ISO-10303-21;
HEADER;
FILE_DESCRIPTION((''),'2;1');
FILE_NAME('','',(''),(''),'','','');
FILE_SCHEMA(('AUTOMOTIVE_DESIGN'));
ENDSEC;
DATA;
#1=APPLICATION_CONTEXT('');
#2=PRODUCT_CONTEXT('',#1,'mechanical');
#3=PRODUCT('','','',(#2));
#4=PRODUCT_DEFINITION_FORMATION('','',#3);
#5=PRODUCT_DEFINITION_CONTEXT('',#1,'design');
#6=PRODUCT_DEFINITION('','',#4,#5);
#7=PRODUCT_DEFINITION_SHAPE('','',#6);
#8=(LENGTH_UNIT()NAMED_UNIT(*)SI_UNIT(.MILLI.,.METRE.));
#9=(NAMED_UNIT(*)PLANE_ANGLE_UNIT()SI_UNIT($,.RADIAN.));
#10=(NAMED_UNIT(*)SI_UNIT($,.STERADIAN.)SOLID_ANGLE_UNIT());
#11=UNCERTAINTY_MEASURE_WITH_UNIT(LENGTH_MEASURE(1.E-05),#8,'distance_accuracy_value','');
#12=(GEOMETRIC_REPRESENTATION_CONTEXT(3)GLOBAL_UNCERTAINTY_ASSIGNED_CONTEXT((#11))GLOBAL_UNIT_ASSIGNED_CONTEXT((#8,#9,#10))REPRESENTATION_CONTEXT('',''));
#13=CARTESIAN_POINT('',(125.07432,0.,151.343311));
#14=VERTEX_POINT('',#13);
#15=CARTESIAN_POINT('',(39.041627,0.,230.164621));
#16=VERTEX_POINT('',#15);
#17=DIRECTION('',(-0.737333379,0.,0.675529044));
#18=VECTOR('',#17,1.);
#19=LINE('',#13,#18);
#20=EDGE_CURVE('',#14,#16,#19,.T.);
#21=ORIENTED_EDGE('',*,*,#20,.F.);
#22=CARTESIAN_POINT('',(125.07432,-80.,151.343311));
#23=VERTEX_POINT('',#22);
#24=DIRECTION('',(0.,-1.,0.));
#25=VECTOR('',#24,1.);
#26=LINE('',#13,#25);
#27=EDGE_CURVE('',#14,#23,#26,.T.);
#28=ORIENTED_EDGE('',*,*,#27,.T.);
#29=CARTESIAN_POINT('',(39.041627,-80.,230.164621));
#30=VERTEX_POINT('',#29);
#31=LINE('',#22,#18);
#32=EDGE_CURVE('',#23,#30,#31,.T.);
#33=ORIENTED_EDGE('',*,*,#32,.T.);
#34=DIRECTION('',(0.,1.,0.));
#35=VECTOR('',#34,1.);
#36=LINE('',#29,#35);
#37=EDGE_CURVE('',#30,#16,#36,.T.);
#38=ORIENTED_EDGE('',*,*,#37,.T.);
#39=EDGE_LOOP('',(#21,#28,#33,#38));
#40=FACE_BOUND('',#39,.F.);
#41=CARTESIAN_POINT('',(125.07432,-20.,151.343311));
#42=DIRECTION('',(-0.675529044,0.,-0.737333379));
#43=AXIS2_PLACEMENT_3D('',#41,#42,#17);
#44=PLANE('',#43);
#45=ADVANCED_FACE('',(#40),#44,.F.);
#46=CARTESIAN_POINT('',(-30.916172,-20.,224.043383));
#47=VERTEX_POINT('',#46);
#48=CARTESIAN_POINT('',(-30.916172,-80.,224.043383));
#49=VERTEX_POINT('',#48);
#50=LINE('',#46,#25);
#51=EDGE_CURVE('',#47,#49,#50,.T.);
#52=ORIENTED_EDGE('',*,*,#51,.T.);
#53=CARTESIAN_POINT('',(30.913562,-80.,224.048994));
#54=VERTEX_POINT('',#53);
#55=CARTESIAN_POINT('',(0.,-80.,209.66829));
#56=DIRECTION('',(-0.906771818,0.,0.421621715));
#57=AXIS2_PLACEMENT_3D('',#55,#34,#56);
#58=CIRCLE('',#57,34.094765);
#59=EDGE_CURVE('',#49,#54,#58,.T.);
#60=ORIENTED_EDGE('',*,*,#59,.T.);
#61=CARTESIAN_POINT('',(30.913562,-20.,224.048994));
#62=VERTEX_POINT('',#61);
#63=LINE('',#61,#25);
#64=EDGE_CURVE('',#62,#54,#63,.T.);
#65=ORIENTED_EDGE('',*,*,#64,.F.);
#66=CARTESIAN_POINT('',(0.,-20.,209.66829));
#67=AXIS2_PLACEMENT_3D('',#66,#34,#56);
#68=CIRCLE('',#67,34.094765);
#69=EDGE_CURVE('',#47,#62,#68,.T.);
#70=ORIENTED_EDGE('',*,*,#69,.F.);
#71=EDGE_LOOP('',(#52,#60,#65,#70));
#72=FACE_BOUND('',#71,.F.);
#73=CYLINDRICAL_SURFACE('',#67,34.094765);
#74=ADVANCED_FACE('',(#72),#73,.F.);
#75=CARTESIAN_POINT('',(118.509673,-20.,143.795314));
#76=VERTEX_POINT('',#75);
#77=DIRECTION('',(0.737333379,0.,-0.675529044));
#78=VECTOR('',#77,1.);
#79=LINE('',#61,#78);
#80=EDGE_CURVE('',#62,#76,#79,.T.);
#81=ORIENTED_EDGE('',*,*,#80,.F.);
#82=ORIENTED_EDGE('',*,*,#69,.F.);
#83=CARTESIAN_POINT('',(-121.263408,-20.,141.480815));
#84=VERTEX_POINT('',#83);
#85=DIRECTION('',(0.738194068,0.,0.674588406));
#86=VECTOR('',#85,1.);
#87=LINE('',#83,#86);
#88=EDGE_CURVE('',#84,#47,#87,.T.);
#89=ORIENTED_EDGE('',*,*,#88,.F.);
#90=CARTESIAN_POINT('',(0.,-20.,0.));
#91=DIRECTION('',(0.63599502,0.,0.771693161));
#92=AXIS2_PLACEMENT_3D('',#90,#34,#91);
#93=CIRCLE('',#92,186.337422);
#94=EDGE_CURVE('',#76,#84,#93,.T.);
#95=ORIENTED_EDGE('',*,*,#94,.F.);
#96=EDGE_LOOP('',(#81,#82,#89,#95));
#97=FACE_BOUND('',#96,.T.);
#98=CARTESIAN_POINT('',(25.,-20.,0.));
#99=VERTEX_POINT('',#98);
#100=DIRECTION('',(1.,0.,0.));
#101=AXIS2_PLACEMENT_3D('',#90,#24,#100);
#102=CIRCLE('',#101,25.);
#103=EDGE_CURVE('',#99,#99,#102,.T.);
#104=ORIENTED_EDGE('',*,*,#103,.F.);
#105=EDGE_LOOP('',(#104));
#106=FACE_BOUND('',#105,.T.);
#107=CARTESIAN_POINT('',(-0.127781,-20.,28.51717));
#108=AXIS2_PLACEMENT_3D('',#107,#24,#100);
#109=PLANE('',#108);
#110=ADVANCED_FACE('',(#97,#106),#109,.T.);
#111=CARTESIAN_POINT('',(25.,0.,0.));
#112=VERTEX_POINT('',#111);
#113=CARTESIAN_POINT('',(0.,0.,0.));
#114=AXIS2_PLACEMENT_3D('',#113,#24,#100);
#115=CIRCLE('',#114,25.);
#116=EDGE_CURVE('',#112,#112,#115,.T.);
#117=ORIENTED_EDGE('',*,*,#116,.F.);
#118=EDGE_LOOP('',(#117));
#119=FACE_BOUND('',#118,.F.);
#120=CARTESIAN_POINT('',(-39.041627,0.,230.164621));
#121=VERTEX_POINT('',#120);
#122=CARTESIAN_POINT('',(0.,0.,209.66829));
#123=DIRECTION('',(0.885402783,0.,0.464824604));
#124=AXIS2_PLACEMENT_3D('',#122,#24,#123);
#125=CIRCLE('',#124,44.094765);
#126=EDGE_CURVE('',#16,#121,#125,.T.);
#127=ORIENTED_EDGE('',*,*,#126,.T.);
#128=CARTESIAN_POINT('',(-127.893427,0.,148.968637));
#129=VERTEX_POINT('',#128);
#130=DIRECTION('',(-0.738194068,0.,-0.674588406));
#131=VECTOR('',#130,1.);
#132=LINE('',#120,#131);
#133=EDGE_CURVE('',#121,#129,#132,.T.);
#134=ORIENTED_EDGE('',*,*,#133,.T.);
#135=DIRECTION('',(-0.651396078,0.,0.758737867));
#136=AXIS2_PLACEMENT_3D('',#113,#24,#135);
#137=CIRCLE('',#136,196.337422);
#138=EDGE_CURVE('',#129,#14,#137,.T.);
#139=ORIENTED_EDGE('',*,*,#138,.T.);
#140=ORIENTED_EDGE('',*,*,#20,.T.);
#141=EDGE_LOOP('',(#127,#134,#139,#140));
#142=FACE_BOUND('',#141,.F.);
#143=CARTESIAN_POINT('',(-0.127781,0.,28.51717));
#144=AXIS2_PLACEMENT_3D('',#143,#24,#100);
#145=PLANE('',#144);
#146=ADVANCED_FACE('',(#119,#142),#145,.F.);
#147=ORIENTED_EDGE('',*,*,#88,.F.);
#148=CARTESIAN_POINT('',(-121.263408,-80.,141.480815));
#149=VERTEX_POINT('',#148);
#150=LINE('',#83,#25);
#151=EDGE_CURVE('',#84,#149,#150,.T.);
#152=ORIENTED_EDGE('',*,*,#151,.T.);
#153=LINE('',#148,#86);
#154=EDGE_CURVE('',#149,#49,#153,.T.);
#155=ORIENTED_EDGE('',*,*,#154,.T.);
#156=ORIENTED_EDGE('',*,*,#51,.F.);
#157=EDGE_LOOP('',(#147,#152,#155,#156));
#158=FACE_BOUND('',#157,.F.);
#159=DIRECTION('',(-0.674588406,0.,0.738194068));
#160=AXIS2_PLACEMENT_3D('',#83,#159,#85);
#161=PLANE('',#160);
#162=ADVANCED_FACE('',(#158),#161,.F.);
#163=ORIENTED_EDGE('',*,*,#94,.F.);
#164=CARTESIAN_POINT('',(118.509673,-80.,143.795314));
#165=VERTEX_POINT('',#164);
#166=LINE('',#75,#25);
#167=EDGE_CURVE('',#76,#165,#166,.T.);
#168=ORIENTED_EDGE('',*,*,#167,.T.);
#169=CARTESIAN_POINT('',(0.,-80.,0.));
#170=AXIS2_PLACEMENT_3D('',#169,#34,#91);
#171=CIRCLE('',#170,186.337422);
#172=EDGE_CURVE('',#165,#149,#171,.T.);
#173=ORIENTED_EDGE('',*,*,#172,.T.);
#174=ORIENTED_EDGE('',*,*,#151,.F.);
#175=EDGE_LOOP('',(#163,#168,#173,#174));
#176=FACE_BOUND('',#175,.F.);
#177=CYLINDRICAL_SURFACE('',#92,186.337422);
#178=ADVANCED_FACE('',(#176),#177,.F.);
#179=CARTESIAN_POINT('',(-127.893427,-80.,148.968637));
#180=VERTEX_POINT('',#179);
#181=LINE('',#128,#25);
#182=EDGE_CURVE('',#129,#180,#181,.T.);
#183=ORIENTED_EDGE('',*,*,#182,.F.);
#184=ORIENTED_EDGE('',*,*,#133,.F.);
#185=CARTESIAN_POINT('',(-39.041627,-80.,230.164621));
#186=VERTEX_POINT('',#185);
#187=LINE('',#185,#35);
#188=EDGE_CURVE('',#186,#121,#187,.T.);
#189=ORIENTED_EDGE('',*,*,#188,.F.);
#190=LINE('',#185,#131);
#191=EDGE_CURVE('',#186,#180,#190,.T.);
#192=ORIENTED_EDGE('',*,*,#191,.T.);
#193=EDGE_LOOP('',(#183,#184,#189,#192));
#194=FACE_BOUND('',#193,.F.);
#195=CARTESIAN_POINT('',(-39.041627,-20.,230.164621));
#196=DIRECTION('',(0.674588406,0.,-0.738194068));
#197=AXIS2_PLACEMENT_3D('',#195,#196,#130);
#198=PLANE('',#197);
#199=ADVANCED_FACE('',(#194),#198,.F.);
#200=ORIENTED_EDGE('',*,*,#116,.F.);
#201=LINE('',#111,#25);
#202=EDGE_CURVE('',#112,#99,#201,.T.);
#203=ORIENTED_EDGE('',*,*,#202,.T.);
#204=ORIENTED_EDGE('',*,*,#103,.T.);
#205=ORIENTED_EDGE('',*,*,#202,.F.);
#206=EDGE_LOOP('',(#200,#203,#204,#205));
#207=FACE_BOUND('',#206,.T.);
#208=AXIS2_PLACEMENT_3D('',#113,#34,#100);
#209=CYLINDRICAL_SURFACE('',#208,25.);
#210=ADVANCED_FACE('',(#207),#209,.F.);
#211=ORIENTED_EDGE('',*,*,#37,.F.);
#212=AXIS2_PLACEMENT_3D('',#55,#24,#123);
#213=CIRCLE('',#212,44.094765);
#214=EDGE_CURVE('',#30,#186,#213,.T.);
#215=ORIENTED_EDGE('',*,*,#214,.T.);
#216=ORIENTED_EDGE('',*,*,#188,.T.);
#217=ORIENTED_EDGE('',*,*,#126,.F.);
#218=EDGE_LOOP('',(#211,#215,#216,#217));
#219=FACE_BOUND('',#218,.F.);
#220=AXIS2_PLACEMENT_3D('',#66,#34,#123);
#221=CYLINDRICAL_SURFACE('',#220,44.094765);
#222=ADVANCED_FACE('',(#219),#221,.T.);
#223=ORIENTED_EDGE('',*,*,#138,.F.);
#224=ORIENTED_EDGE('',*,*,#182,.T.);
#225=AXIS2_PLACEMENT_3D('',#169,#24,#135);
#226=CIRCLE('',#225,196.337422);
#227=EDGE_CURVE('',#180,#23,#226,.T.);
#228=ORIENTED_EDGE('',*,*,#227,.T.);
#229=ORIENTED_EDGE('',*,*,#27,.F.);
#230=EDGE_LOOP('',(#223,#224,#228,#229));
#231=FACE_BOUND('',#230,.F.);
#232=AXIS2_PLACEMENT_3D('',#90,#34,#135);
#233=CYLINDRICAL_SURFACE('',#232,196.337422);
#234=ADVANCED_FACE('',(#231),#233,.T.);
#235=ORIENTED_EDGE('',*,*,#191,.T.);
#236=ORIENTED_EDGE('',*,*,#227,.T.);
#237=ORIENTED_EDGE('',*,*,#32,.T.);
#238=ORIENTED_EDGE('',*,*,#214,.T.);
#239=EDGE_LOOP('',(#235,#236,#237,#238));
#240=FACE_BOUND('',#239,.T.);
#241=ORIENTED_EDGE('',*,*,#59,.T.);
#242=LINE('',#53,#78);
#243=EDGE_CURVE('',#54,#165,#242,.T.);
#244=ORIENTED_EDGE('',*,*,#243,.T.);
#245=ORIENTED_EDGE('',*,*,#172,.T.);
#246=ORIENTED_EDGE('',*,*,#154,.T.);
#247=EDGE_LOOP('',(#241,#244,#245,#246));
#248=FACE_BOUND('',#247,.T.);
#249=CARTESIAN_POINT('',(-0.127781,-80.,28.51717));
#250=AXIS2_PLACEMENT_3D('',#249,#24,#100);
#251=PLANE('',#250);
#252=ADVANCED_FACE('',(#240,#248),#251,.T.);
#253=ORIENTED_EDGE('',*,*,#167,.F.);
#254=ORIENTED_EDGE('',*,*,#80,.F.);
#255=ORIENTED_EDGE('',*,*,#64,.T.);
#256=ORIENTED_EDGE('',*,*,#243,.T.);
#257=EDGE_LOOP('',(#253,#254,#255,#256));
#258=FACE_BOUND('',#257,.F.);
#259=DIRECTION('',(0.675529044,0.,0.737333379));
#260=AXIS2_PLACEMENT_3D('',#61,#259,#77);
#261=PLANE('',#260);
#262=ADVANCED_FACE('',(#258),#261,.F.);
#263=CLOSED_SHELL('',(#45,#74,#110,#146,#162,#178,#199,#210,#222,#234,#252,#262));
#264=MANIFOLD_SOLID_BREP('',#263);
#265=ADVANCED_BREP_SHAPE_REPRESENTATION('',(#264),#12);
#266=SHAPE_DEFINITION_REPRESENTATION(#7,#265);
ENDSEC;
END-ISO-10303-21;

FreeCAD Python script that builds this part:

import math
import FreeCAD as App
import Part
import Sketcher
Q = App.Units.Quantity

doc = App.newDocument("Part")
body = doc.addObject("PartDesign::Body", "Body")

sketch1 = doc.addObject("Sketcher::SketchObject", "Sketch")
body.addObject(sketch1)
sketch1.AttachmentSupport = (doc.XZ_Plane, [""])
sketch1.MapMode = "FlatFace"
sketch1.addGeometry([
    Part.LineSegment(App.Vector(-39, 230, 0), App.Vector(-128, 149, 0)),
    Part.ArcOfCircle(Part.Circle(App.Vector(0, 0, 0), App.Vector(0, 0, 1), 196), math.radians(131), math.radians(410)),
    Part.LineSegment(App.Vector(125, 151, 0), App.Vector(39, 230, 0)),
    Part.ArcOfCircle(Part.Circle(App.Vector(0, 210, 0), App.Vector(0, 0, 1), 44), math.radians(28), math.radians(152)),
    Part.Circle(App.Vector(0, 0, 0), App.Vector(0, 0, 1), 25),
], False)
sketch1.addConstraint([
    Sketcher.Constraint("Coincident", 0, 2, 1, 1),
    Sketcher.Constraint("Coincident", 1, 2, 2, 1),
    Sketcher.Constraint("Coincident", 2, 2, 3, 1),
    Sketcher.Constraint("Coincident", 3, 2, 0, 1),
    Sketcher.Constraint("Coincident", 1, 3, -1, 1),
    Sketcher.Constraint("Coincident", 4, 3, -1, 1),
    Sketcher.Constraint("Symmetric", 2, 2, 3, 2, -2),
    Sketcher.Constraint("Diameter", 4, Q("50 mm")),
    Sketcher.Constraint("Radius", 1, Q("196.337422 mm")),
    Sketcher.Constraint("Radius", 3, Q("44.094765 mm")),
    Sketcher.Constraint("DistanceX", 0, 2, 3, 2, Q("88.8518 mm")),
    Sketcher.Constraint("Distance", 0, Q("120.363741 mm")),
    Sketcher.Constraint("Distance", 2, Q("116.68086 mm")),
    Sketcher.Constraint("DistanceY", -1, 1, 3, 3, Q("209.66829 mm")),
])
pad1 = doc.addObject("PartDesign::Pad", "Pad")
body.addObject(pad1)
pad1.Profile = sketch1
pad1.Length = 20

sketch2 = doc.addObject("Sketcher::SketchObject", "Sketch001")
body.addObject(sketch2)
sketch2.AttachmentSupport = (doc.XZ_Plane, [""])
sketch2.MapMode = "FlatFace"
sketch2.AttachmentOffset = App.Placement(App.Vector(0, 0, 20), App.Rotation())
sketch2.addGeometry([
    Part.LineSegment(App.Vector(-39, 230, 0), App.Vector(-128, 149, 0)),
    Part.ArcOfCircle(Part.Circle(App.Vector(0, 0, 0), App.Vector(0, 0, 1), 196), math.radians(131), math.radians(410)),
    Part.LineSegment(App.Vector(125, 151, 0), App.Vector(39, 230, 0)),
    Part.ArcOfCircle(Part.Circle(App.Vector(0, 210, 0), App.Vector(0, 0, 1), 44), math.radians(28), math.radians(152)),
    Part.LineSegment(App.Vector(31, 224, 0), App.Vector(119, 144, 0)),
    Part.ArcOfCircle(Part.Circle(App.Vector(0, 0, 0), App.Vector(0, 0, 1), 186), math.radians(131), math.radians(411)),
    Part.LineSegment(App.Vector(-121, 141, 0), App.Vector(-31, 224, 0)),
    Part.ArcOfCircle(Part.Circle(App.Vector(0, 210, 0), App.Vector(0, 0, 1), 34), math.radians(25), math.radians(155)),
], False)
sketch2.addConstraint([
    Sketcher.Constraint("Coincident", 0, 2, 1, 1),
    Sketcher.Constraint("Coincident", 1, 2, 2, 1),
    Sketcher.Constraint("Coincident", 2, 2, 3, 1),
    Sketcher.Constraint("Coincident", 3, 2, 0, 1),
    Sketcher.Constraint("Coincident", 4, 2, 5, 2),
    Sketcher.Constraint("Coincident", 5, 1, 6, 1),
    Sketcher.Constraint("Coincident", 6, 2, 7, 2),
    Sketcher.Constraint("Coincident", 7, 1, 4, 1),
    Sketcher.Constraint("Coincident", 1, 3, -1, 1),
    Sketcher.Constraint("Coincident", 5, 3, -1, 1),
    Sketcher.Constraint("Coincident", 7, 3, 3, 3),
    Sketcher.Constraint("Symmetric", 2, 2, 3, 2, -2),
    Sketcher.Constraint("Parallel", 2, 4),
    Sketcher.Constraint("Parallel", 0, 6),
    Sketcher.Constraint("Radius", 1, Q("196.337422 mm")),
    Sketcher.Constraint("Radius", 3, Q("44.094765 mm")),
    Sketcher.Constraint("Radius", 5, Q("186.337422 mm")),
    Sketcher.Constraint("Radius", 7, Q("34.094765 mm")),
    Sketcher.Constraint("DistanceX", 0, 2, 3, 2, Q("88.8518 mm")),
    Sketcher.Constraint("DistanceX", 3, 2, 4, 2, Q("157.5513 mm")),
    Sketcher.Constraint("DistanceX", 6, 2, 2, 2, Q("69.957799 mm")),
    Sketcher.Constraint("Distance", 0, Q("120.363741 mm")),
    Sketcher.Constraint("Distance", 2, Q("116.68086 mm")),
    Sketcher.Constraint("Distance", 4, Q("118.801228 mm")),
])
pad2 = doc.addObject("PartDesign::Pad", "Pad001")
body.addObject(pad2)
pad2.Profile = sketch2
pad2.Length = 60

doc.recompute()
